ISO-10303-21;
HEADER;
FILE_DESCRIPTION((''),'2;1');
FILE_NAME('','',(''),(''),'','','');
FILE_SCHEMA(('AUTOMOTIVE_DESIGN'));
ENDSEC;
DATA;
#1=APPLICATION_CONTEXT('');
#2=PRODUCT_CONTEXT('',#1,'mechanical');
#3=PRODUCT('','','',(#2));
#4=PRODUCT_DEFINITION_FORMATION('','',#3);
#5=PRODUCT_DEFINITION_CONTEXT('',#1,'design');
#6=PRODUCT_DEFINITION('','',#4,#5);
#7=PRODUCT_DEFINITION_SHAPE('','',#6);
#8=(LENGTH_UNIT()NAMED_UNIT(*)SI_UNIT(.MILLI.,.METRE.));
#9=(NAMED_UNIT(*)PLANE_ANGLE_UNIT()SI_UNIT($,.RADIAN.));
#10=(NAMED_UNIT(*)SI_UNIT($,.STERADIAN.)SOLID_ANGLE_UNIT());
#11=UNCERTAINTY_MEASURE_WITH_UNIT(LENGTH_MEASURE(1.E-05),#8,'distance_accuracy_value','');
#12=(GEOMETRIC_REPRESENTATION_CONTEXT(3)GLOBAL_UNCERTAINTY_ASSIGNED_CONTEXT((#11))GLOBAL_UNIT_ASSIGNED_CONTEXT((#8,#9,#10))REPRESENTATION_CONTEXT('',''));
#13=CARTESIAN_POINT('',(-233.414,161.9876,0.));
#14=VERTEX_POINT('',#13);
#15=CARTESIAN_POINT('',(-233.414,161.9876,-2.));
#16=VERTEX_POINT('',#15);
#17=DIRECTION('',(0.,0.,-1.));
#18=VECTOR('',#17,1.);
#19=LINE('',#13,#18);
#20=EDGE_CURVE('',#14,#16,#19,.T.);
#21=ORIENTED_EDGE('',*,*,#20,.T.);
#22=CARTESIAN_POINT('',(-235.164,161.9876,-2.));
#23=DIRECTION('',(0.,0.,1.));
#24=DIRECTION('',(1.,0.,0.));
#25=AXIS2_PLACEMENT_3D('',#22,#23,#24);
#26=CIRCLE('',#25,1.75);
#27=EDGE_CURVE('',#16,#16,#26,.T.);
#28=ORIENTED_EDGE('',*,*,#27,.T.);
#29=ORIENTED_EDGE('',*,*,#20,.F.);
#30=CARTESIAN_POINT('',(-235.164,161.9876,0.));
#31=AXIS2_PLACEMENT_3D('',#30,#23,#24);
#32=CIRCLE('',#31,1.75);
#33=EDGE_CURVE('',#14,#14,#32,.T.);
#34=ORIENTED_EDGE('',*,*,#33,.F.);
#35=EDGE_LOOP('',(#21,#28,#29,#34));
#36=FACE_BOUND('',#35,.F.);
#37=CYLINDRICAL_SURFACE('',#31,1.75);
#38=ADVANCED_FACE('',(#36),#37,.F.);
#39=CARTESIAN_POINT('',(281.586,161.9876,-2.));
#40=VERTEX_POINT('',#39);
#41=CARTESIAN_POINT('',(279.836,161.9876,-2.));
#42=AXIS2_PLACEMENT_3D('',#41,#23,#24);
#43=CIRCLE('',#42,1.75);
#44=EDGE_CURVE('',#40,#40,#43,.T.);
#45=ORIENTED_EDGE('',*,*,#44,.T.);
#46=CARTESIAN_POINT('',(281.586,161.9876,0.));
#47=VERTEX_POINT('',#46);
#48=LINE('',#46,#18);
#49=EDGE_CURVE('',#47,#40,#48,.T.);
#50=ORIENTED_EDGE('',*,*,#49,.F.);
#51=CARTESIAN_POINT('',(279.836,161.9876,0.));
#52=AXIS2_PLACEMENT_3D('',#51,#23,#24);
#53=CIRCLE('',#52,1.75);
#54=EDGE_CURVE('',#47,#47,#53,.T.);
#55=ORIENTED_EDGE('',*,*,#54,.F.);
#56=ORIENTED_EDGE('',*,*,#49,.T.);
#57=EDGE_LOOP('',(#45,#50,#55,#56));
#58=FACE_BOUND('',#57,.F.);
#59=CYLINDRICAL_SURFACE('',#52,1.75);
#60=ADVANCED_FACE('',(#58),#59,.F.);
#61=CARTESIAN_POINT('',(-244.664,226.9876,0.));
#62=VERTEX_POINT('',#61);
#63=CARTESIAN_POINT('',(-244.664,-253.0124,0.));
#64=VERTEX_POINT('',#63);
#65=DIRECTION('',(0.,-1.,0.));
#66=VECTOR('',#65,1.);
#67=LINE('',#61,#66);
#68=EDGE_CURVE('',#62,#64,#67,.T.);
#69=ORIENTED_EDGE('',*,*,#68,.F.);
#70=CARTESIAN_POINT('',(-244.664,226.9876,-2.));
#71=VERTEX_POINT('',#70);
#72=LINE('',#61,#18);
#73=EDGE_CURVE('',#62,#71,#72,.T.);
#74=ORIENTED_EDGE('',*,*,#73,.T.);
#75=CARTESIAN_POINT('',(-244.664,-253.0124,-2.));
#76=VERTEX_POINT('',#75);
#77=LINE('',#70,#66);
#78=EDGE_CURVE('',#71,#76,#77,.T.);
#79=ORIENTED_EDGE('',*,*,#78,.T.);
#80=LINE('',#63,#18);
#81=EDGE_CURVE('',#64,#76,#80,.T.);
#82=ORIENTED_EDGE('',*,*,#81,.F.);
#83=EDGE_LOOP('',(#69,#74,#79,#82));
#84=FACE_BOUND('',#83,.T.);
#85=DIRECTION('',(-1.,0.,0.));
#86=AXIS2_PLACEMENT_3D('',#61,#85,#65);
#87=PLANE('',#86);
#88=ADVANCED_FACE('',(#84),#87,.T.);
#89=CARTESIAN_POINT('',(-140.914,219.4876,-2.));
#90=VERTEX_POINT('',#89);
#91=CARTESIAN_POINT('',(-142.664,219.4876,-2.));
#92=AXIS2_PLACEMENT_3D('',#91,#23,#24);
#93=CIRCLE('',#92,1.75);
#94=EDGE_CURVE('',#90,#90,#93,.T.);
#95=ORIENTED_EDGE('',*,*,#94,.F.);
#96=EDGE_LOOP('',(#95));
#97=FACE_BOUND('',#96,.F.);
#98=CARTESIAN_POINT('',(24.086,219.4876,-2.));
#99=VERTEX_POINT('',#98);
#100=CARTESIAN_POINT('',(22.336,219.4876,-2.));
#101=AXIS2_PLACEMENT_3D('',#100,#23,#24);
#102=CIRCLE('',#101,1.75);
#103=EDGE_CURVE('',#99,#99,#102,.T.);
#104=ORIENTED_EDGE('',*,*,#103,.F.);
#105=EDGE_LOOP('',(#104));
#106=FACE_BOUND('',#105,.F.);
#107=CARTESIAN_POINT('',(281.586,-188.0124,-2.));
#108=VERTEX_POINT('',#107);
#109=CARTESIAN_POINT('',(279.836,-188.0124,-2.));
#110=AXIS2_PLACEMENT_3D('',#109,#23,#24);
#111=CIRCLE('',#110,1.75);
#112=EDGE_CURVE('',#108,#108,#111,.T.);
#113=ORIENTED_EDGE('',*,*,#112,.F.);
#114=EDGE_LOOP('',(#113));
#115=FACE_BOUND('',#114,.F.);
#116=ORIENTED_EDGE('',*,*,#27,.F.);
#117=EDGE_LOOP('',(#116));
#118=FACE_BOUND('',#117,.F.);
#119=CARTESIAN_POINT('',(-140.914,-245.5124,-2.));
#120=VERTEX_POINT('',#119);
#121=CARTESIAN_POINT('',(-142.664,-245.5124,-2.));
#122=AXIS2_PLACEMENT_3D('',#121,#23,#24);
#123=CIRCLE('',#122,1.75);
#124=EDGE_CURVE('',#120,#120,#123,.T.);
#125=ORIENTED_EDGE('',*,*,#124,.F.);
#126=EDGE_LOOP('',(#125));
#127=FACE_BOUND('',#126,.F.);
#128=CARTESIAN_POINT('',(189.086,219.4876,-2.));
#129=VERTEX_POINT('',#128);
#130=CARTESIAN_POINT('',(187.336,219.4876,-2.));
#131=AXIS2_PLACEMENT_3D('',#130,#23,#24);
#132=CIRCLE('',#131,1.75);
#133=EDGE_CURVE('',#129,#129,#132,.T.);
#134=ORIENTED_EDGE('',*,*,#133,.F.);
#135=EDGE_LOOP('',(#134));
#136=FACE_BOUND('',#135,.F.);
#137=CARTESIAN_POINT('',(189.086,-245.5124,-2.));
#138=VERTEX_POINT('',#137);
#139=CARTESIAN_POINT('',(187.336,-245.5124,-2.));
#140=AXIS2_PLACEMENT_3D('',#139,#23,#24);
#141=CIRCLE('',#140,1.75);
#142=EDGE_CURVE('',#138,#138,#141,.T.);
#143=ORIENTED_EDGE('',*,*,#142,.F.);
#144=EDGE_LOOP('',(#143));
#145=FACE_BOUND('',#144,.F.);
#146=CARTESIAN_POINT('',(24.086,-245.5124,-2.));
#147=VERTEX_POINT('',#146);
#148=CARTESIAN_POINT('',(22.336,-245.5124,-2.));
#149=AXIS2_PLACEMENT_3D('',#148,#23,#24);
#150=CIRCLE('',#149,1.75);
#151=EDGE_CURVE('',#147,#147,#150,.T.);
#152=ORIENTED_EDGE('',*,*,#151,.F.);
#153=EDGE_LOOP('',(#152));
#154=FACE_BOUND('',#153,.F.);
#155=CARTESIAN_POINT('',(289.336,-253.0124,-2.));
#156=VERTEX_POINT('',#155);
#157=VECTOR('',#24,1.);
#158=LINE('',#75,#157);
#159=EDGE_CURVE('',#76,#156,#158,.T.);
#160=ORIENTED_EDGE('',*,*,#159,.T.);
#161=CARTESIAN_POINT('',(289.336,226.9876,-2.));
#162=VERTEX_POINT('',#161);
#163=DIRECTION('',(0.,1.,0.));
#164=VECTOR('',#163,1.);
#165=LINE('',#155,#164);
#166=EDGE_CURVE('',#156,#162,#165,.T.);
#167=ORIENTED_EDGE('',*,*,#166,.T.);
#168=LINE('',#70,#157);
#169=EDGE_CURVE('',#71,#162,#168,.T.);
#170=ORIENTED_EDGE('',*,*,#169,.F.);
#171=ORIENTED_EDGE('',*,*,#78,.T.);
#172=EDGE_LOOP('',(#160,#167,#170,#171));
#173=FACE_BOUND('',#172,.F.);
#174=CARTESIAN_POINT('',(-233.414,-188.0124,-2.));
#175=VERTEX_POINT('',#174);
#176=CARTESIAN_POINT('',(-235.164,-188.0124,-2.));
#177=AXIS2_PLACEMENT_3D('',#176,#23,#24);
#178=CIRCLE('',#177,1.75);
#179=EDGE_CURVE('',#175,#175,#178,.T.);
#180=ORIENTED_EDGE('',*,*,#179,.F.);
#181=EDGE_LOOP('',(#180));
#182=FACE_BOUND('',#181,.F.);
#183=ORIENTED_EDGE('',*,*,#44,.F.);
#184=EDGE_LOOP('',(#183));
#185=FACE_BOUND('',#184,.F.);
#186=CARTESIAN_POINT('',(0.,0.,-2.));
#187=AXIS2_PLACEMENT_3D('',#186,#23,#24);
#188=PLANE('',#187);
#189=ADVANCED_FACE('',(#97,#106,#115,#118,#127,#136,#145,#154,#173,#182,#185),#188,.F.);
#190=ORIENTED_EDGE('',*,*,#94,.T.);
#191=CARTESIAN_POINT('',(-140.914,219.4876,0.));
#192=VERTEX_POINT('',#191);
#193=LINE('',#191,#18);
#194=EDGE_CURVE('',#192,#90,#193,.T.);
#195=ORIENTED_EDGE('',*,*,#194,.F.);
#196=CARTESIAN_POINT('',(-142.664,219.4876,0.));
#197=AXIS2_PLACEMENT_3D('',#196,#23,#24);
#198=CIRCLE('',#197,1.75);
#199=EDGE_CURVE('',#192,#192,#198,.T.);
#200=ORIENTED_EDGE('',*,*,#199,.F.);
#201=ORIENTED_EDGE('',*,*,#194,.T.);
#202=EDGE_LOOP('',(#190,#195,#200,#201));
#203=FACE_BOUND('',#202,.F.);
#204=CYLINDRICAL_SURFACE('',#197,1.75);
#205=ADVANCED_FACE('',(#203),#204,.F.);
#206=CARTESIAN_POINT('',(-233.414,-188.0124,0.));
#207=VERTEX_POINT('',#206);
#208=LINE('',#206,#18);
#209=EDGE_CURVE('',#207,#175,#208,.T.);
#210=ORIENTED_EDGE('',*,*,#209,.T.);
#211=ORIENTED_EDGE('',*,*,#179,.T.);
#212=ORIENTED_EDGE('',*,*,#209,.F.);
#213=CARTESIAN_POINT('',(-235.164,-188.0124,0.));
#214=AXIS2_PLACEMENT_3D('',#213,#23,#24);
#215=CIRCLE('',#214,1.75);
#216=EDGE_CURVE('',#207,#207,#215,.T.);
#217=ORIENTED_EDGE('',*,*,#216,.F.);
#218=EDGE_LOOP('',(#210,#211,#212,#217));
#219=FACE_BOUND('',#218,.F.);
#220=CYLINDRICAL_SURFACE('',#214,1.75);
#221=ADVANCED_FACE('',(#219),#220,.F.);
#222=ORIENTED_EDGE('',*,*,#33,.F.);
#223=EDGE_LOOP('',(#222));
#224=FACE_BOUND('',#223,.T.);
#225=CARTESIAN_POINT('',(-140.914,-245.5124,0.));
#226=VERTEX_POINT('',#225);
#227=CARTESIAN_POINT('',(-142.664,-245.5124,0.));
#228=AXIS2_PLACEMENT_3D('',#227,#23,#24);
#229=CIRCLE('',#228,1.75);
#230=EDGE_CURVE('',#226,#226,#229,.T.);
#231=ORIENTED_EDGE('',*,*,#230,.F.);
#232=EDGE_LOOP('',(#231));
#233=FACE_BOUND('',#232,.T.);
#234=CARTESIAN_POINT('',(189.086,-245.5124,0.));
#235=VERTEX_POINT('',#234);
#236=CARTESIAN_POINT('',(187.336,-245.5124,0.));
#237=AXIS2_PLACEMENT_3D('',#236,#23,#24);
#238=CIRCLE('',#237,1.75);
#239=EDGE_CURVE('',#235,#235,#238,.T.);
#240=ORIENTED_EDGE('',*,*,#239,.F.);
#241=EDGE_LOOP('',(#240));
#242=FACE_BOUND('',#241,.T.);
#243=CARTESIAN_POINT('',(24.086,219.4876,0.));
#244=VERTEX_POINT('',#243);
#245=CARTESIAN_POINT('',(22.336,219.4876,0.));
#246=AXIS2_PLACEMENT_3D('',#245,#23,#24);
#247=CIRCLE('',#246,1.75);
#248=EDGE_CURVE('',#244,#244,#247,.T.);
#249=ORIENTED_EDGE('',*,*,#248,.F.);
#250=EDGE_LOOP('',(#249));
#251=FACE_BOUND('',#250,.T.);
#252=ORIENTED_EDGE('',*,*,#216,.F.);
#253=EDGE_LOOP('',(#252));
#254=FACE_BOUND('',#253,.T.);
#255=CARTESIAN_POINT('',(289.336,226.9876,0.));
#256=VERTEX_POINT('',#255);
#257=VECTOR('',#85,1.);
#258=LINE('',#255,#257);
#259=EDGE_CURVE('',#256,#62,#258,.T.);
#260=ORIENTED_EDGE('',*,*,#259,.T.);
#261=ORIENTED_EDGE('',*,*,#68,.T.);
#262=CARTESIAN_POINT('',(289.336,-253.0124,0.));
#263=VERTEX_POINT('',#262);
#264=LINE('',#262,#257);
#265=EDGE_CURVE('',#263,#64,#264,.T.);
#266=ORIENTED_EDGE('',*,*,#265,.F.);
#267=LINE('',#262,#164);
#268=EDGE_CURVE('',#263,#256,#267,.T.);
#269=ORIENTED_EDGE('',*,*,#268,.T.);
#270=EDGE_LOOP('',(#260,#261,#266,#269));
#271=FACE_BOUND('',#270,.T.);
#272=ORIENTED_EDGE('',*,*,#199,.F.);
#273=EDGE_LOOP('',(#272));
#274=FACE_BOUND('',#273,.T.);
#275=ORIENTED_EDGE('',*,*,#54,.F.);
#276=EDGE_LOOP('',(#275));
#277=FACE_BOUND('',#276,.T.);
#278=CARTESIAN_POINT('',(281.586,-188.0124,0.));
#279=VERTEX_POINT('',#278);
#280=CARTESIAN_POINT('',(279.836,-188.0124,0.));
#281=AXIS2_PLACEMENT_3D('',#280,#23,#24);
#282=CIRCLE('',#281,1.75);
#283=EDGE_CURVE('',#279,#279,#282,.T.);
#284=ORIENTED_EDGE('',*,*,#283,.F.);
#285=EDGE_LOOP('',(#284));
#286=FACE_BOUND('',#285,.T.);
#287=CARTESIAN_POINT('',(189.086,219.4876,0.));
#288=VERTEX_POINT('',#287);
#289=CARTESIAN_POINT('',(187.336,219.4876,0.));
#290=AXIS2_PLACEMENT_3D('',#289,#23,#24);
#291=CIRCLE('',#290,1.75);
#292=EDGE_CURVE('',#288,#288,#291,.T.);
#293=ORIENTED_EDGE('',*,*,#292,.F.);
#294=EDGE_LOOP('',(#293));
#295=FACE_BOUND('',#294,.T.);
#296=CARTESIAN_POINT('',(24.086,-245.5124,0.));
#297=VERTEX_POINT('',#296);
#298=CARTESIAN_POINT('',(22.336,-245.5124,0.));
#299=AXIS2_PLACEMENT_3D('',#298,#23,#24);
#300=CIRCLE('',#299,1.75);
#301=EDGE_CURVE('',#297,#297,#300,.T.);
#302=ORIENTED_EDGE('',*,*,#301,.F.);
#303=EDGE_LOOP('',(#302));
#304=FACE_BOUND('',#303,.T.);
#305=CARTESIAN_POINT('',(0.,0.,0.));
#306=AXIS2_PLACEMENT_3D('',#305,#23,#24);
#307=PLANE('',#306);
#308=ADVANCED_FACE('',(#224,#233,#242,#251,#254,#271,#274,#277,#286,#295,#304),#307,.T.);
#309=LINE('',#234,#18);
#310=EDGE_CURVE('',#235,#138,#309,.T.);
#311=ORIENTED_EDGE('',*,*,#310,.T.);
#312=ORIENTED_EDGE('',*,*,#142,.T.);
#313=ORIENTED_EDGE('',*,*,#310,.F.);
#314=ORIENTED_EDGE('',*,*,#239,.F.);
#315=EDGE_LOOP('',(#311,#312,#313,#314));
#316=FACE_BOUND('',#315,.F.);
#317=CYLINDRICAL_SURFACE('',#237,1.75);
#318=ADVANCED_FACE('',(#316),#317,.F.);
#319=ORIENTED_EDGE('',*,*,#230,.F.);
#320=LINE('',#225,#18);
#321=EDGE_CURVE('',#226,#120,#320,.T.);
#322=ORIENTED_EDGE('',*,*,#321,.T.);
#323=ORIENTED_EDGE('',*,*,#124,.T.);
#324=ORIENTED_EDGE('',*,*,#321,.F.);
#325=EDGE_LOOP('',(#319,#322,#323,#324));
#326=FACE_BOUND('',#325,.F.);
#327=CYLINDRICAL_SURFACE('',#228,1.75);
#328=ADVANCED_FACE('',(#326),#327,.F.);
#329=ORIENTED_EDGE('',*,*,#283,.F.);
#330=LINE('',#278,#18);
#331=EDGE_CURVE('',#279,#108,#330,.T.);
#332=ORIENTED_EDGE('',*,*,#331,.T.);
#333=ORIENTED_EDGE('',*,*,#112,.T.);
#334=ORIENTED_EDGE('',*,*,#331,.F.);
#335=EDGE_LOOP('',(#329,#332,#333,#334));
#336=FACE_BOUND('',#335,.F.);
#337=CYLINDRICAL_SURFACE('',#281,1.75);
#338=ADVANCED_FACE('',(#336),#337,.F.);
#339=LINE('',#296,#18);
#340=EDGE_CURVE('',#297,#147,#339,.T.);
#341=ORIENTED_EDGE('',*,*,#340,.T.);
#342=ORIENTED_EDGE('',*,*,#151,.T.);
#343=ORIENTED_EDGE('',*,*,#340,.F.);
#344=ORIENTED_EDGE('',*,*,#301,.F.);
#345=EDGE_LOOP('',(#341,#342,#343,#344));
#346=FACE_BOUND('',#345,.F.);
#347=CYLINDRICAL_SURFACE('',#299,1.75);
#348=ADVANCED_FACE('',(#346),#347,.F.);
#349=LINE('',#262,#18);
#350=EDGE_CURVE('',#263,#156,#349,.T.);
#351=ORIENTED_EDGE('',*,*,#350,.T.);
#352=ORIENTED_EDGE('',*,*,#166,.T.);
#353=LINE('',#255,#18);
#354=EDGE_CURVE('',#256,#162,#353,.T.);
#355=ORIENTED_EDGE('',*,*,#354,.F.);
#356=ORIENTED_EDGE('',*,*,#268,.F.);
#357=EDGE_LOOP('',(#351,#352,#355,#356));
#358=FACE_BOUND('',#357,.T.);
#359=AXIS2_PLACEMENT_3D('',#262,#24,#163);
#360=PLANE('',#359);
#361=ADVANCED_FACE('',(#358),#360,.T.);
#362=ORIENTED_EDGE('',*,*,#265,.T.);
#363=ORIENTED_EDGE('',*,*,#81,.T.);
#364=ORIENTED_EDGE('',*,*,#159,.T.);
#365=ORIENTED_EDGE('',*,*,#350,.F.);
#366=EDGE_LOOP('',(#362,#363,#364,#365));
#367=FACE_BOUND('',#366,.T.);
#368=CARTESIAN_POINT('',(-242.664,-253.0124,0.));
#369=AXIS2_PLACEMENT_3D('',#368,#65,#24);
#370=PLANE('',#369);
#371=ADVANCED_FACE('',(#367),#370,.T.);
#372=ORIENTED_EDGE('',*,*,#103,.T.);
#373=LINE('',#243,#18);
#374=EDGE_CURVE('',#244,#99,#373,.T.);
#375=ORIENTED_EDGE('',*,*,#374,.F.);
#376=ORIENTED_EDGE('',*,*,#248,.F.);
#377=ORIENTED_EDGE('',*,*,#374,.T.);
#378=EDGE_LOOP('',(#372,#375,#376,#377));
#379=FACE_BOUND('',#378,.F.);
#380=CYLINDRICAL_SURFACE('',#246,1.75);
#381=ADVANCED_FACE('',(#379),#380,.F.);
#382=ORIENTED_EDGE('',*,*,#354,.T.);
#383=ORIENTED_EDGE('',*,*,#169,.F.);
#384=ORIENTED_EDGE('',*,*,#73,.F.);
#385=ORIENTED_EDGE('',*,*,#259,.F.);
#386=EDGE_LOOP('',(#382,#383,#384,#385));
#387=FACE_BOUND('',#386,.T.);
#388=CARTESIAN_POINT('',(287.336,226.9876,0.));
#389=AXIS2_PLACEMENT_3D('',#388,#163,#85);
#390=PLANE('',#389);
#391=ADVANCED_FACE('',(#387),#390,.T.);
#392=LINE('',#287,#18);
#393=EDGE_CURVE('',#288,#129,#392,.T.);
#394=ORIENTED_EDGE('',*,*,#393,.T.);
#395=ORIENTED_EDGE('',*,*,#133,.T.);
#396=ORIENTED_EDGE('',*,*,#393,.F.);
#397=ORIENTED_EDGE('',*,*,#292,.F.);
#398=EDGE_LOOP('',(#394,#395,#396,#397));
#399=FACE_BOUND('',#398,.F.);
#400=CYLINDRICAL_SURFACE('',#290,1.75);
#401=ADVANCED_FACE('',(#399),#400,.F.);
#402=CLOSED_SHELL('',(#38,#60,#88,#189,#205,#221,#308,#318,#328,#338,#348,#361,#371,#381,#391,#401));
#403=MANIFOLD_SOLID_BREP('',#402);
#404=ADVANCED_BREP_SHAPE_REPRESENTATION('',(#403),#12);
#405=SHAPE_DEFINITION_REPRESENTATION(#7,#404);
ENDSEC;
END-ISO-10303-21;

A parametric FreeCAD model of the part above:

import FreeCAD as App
import Part
import Sketcher

V = App.Vector


def add_polygon(sketch, points):
    """Adds a closed chain of lines whose ends are joined by coincident constraints."""
    first, n = sketch.GeometryCount, len(points)
    for a, b in zip(points, points[1:] + points[:1]):
        sketch.addGeometry(Part.LineSegment(App.Vector(*a, 0), App.Vector(*b, 0)), False)
    for i in range(n):
        sketch.addConstraint(Sketcher.Constraint("Coincident", first + i, 2, first + (i + 1) % n, 1))

doc = App.newDocument("Part")
body = doc.addObject("PartDesign::Body", "Body")

# Sketch on XY plane
sketch1 = body.newObject("Sketcher::SketchObject", "Sketch")
sketch1.AttachmentSupport = (doc.getObject("XY_Plane"), [""])
sketch1.MapMode = "FlatFace"
add_polygon(sketch1, [(289.3, -253), (289.3, 227), (-244.7, 227), (-244.7, -253)])  # lines 0-3
sketch1.addGeometry(Part.Circle(V(-142.7, -245.5, 0), V(0, 0, 1), 1.8), False)  # 4
sketch1.addGeometry(Part.Circle(V(-235.2, -188, 0), V(0, 0, 1), 1.8), False)  # 5
sketch1.addGeometry(Part.Circle(V(22.3, -245.5, 0), V(0, 0, 1), 1.8), False)  # 6
sketch1.addGeometry(Part.Circle(V(187.3, -245.5, 0), V(0, 0, 1), 1.8), False)  # 7
sketch1.addGeometry(Part.Circle(V(279.8, -188, 0), V(0, 0, 1), 1.8), False)  # 8
sketch1.addGeometry(Part.Circle(V(-235.2, 162, 0), V(0, 0, 1), 1.8), False)  # 9
sketch1.addGeometry(Part.Circle(V(-142.7, 219.5, 0), V(0, 0, 1), 1.8), False)  # 10
sketch1.addGeometry(Part.Circle(V(22.3, 219.5, 0), V(0, 0, 1), 1.8), False)  # 11
sketch1.addGeometry(Part.Circle(V(279.8, 162, 0), V(0, 0, 1), 1.8), False)  # 12
sketch1.addGeometry(Part.Circle(V(187.3, 219.5, 0), V(0, 0, 1), 1.8), False)  # 13
sketch1.addConstraint([
    Sketcher.Constraint("Vertical", 0),
    Sketcher.Constraint("Horizontal", 1),
    Sketcher.Constraint("Vertical", 2),
    Sketcher.Constraint("Horizontal", 3),
    Sketcher.Constraint("Equal", 4, 5),
    Sketcher.Constraint("Equal", 5, 6),
    Sketcher.Constraint("Equal", 6, 7),
    Sketcher.Constraint("Equal", 7, 8),
    Sketcher.Constraint("Equal", 8, 9),
    Sketcher.Constraint("Equal", 9, 10),
    Sketcher.Constraint("Equal", 10, 11),
    Sketcher.Constraint("Equal", 11, 12),
    Sketcher.Constraint("Equal", 12, 13),
    Sketcher.Constraint("Horizontal", 4, 3, 6, 3),
    Sketcher.Constraint("Horizontal", 6, 3, 7, 3),
    Sketcher.Constraint("Horizontal", 5, 3, 8, 3),
    Sketcher.Constraint("Horizontal", 10, 3, 11, 3),
    Sketcher.Constraint("Horizontal", 9, 3, 12, 3),
    Sketcher.Constraint("Horizontal", 11, 3, 13, 3),
    Sketcher.Constraint("Vertical", 5, 3, 9, 3),
    Sketcher.Constraint("Vertical", 4, 3, 10, 3),
    Sketcher.Constraint("Vertical", 6, 3, 11, 3),
    Sketcher.Constraint("Vertical", 8, 3, 12, 3),
    Sketcher.Constraint("Vertical", 7, 3, 13, 3),
    Sketcher.Constraint("Diameter", 4, 3.5),
    Sketcher.Constraint("DistanceY", 12, 3, 0, 2, 65.0),
    Sketcher.Constraint("DistanceY", 2, 2, 5, 3, 65.0),
    Sketcher.Constraint("DistanceY", 13, 3, 0, 2, 7.5),
    Sketcher.Constraint("DistanceY", 2, 2, 4, 3, 7.5),
    Sketcher.Constraint("DistanceX", 1, 2, 1, 1, 534.0),
    Sketcher.Constraint("DistanceY", 0, 1, 0, 2, 480.0),
    Sketcher.Constraint("DistanceX", 4, 3, 6, 3, 165.0),
    Sketcher.Constraint("DistanceX", 6, 3, 7, 3, 165.0),
    Sketcher.Constraint("DistanceX", 5, 3, 8, 3, 515.0),
    Sketcher.Constraint("DistanceX", 13, 3, 0, 2, 102.0),
    Sketcher.Constraint("DistanceX", 5, 3, 4, 3, 92.5),
    Sketcher.Constraint("DistanceX", 4, 3, -1, 1, 142.664),
    Sketcher.Constraint("DistanceY", 4, 3, -1, 1, 245.5124),
])
pad1 = body.newObject("PartDesign::Pad", "Pad")
pad1.Profile = sketch1
pad1.Length = 2
pad1.Reversed = True

doc.recompute()
